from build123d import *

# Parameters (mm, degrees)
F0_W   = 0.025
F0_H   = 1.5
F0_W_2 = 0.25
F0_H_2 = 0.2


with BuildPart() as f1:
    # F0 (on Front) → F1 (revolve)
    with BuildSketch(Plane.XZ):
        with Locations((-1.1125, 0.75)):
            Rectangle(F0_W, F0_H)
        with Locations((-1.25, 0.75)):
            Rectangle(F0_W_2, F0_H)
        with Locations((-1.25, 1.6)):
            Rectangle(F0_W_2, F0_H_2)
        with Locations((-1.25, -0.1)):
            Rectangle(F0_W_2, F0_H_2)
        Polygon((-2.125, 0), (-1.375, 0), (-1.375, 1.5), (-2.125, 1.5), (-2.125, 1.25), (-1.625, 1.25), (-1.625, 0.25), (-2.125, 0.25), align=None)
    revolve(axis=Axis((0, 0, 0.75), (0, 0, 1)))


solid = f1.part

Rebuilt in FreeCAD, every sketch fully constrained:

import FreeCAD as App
import Part
import Sketcher
from FreeCAD import Vector
Q = App.Units.Quantity

doc = App.newDocument("Part")
params = doc.addObject("Spreadsheet::Sheet", "Params")
for row, (alias, value) in enumerate([
    ("sketch1_height", "1 mm"),
    ("sketch1_width", "0.5 mm"),
    ("sketch1_height2", "1.5 mm"),
    ("sketch1_height3", "0.2 mm"),
    ("revolution_angle", "360 deg"),
], start=1):
    params.set(f"A{row}", alias)
    params.set(f"B{row}", "=" + value)
    params.setAlias(f"B{row}", alias)

body = doc.addObject("PartDesign::Body", "Body")

# Sketch on XZ plane
sketch1 = doc.addObject("Sketcher::SketchObject", "Sketch")
body.addObject(sketch1)
sketch1.AttachmentSupport = (doc.XZ_Plane, [""])
sketch1.MapMode = "FlatFace"
sketch1.addGeometry([
    Part.LineSegment(Vector(-1.1, 0, 0), Vector(-1.1, 1.5, 0)),  # 0
    Part.LineSegment(Vector(-1.1, 1.5, 0), Vector(-1.125, 1.5, 0)),  # 1
    Part.LineSegment(Vector(-1.125, 1.5, 0), Vector(-1.125, 1.7, 0)),  # 2
    Part.LineSegment(Vector(-1.125, 1.7, 0), Vector(-1.375, 1.7, 0)),  # 3
    Part.LineSegment(Vector(-1.375, 1.7, 0), Vector(-1.375, 1.5, 0)),  # 4
    Part.LineSegment(Vector(-1.375, 1.5, 0), Vector(-2.125, 1.5, 0)),  # 5
    Part.LineSegment(Vector(-2.125, 1.5, 0), Vector(-2.125, 1.25, 0)),  # 6
    Part.LineSegment(Vector(-2.125, 1.25, 0), Vector(-1.625, 1.25, 0)),  # 7
    Part.LineSegment(Vector(-1.625, 1.25, 0), Vector(-1.625, 0.25, 0)),  # 8
    Part.LineSegment(Vector(-1.625, 0.25, 0), Vector(-2.125, 0.25, 0)),  # 9
    Part.LineSegment(Vector(-2.125, 0.25, 0), Vector(-2.125, 0, 0)),  # 10
    Part.LineSegment(Vector(-2.125, 0, 0), Vector(-1.375, 0, 0)),  # 11
    Part.LineSegment(Vector(-1.375, 0, 0), Vector(-1.375, -0.2, 0)),  # 12
    Part.LineSegment(Vector(-1.375, -0.2, 0), Vector(-1.125, -0.2, 0)),  # 13
    Part.LineSegment(Vector(-1.125, -0.2, 0), Vector(-1.125, 0, 0)),  # 14
    Part.LineSegment(Vector(-1.125, 0, 0), Vector(-1.1, 0, 0)),  # 15
], False)
sketch1.addConstraint([
    Sketcher.Constraint("Coincident", 0, 2, 1, 1),
    Sketcher.Constraint("Coincident", 1, 2, 2, 1),
    Sketcher.Constraint("Coincident", 2, 2, 3, 1),
    Sketcher.Constraint("Coincident", 3, 2, 4, 1),
    Sketcher.Constraint("Coincident", 4, 2, 5, 1),
    Sketcher.Constraint("Coincident", 5, 2, 6, 1),
    Sketcher.Constraint("Coincident", 6, 2, 7, 1),
    Sketcher.Constraint("Coincident", 7, 2, 8, 1),
    Sketcher.Constraint("Coincident", 8, 2, 9, 1),
    Sketcher.Constraint("Coincident", 9, 2, 10, 1),
    Sketcher.Constraint("Coincident", 10, 2, 11, 1),
    Sketcher.Constraint("Coincident", 11, 2, 12, 1),
    Sketcher.Constraint("Coincident", 12, 2, 13, 1),
    Sketcher.Constraint("Coincident", 13, 2, 14, 1),
    Sketcher.Constraint("Coincident", 14, 2, 15, 1),
    Sketcher.Constraint("Coincident", 15, 2, 0, 1),
    Sketcher.Constraint("Vertical", 0),
    Sketcher.Constraint("Horizontal", 1),
    Sketcher.Constraint("Vertical", 2),
    Sketcher.Constraint("Horizontal", 3),
    Sketcher.Constraint("Vertical", 4),
    Sketcher.Constraint("Horizontal", 5),
    Sketcher.Constraint("Vertical", 6),
    Sketcher.Constraint("Horizontal", 7),
    Sketcher.Constraint("Vertical", 8),
    Sketcher.Constraint("Horizontal", 9),
    Sketcher.Constraint("Vertical", 10),
    Sketcher.Constraint("Horizontal", 11),
    Sketcher.Constraint("Vertical", 12),
    Sketcher.Constraint("Horizontal", 13),
    Sketcher.Constraint("Vertical", 14),
    Sketcher.Constraint("Horizontal", 15),
    Sketcher.Constraint("PointOnObject", 10, 2, -1),
    Sketcher.Constraint("PointOnObject", 14, 2, -1),
    Sketcher.Constraint("Horizontal", 1, 2, 4, 2),
    Sketcher.Constraint("Vertical", 6, 2, 9, 2),
    Sketcher.Constraint("Vertical", 4, 2, 11, 2),
    Sketcher.Constraint("Vertical", 2, 2, 13, 2),
    Sketcher.Constraint("Equal", 13, 6),
    Sketcher.Constraint("Equal", 6, 10),
    Sketcher.Constraint("Equal", 4, 12),
    Sketcher.Constraint("DistanceY", 8, 2, 8, 1, Q("1 mm")),
    Sketcher.Constraint("DistanceX", 7, 1, 7, 2, Q("0.5 mm")),
    Sketcher.Constraint("DistanceY", 0, 1, 0, 2, Q("1.5 mm")),
    Sketcher.Constraint("DistanceY", 2, 1, 2, 2, Q("0.2 mm")),
    Sketcher.Constraint("DistanceX", 5, 2, 1, 2, Q("1 mm")),
    Sketcher.Constraint("DistanceX", 0, 2, -1, 1, Q("1.1 mm")),
    Sketcher.Constraint("DistanceX", 1, 2, 1, 1, Q("0.025 mm")),
])
sketch1.setExpression("Constraints[41]", "Params.sketch1_height")
sketch1.setExpression("Constraints[42]", "Params.sketch1_width")
sketch1.setExpression("Constraints[43]", "Params.sketch1_height2")
sketch1.setExpression("Constraints[44]", "Params.sketch1_height3")
revolution = doc.addObject("PartDesign::Revolution", "Revolution")
body.addObject(revolution)
revolution.Profile = sketch1
revolution.ReferenceAxis = (sketch1, ["V_Axis"])
revolution.setExpression("Angle", "Params.revolution_angle")

doc.recompute()
